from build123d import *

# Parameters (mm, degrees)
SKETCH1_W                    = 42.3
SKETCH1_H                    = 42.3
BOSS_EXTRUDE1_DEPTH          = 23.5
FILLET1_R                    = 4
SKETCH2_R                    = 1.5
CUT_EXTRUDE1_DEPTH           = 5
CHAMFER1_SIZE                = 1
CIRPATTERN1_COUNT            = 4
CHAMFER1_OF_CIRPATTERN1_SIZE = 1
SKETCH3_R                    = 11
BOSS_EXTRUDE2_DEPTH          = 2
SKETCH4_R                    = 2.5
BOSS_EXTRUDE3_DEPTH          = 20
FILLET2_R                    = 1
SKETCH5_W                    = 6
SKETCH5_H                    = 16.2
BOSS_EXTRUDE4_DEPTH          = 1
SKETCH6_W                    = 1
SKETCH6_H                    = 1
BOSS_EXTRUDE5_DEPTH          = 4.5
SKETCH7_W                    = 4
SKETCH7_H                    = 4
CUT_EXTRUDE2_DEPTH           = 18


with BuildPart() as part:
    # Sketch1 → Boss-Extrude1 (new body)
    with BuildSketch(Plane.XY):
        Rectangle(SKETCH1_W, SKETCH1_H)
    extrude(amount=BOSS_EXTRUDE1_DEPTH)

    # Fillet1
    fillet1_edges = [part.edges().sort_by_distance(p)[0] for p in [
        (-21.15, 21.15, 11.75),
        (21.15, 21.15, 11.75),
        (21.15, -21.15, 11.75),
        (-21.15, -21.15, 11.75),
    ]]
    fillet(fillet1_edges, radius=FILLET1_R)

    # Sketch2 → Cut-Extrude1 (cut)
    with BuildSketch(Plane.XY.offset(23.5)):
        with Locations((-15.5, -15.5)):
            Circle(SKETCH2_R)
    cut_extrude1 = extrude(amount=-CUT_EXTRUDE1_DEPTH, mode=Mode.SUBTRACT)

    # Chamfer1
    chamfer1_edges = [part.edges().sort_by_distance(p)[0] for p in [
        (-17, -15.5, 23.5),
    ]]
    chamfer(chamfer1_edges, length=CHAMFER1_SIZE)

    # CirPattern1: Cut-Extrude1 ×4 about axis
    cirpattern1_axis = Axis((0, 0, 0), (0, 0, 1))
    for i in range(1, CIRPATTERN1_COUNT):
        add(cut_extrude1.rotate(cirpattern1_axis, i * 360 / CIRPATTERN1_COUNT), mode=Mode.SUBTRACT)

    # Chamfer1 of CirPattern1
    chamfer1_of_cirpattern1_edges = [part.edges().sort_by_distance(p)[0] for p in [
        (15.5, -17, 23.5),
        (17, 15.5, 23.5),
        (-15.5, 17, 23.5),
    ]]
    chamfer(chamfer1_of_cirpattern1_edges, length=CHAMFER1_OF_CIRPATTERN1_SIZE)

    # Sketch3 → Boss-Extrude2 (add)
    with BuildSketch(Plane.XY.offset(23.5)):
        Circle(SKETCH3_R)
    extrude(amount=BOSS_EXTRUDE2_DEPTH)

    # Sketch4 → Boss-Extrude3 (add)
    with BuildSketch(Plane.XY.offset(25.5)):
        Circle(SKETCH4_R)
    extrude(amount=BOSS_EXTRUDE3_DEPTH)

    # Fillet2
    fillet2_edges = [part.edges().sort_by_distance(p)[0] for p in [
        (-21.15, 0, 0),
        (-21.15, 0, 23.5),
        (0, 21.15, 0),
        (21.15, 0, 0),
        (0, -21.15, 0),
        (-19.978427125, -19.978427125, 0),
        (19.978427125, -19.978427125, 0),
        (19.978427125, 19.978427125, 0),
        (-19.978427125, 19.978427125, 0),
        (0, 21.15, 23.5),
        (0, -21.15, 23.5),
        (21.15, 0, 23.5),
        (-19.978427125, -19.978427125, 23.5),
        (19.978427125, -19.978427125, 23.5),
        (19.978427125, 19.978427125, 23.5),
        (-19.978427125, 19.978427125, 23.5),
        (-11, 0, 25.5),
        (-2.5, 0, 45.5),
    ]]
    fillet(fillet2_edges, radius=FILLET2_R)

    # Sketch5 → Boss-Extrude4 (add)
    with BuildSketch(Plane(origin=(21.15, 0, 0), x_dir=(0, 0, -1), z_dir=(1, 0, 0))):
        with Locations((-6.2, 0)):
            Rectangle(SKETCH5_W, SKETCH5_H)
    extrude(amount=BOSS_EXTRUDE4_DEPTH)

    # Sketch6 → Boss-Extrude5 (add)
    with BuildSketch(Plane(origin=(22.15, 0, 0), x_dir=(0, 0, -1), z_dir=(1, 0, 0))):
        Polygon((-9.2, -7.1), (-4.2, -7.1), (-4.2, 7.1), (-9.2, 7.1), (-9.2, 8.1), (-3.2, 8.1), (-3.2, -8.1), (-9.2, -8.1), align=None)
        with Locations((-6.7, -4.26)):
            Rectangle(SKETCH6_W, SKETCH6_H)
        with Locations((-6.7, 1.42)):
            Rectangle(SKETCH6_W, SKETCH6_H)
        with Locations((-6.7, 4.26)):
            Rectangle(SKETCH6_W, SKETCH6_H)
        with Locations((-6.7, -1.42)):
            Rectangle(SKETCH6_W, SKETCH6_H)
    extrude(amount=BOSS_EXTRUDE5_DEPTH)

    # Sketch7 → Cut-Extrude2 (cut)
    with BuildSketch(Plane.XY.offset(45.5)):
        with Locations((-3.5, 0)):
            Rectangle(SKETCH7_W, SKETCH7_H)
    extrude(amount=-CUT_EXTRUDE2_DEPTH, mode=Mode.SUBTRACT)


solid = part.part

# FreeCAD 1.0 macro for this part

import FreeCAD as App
import Part
import Sketcher

V = App.Vector
Q = App.Units.Quantity


def edges_at(feature, points):
    """Names of the edges that pass closest to the given points."""
    edges = feature.Shape.Edges
    near = lambda p: min(range(len(edges)), key=lambda i: edges[i].distToShape(Part.Vertex(*p))[0])
    return sorted({f"Edge{near(p) + 1}" for p in points})

doc = App.newDocument("Part")
body = doc.addObject("PartDesign::Body", "Body")

# Sketch on XY plane
sketch1 = doc.addObject("Sketcher::SketchObject", "Sketch")
body.addObject(sketch1)
sketch1.AttachmentSupport = (doc.XY_Plane, [""])
sketch1.MapMode = "FlatFace"
sketch1.addGeometry([
    Part.LineSegment(V(-21.15, 21.15, 0), V(-21.15, -21.15, 0)),
    Part.LineSegment(V(-21.15, -21.15, 0), V(21.15, -21.15, 0)),
    Part.LineSegment(V(21.15, -21.15, 0), V(21.15, 21.15, 0)),
    Part.LineSegment(V(21.15, 21.15, 0), V(-21.15, 21.15, 0)),
], False)
sketch1.addConstraint([
    Sketcher.Constraint("Coincident", 0, 2, 1, 1),
    Sketcher.Constraint("Coincident", 1, 2, 2, 1),
    Sketcher.Constraint("Coincident", 2, 2, 3, 1),
    Sketcher.Constraint("Coincident", 3, 2, 0, 1),
    Sketcher.Constraint("Vertical", 0),
    Sketcher.Constraint("Horizontal", 1),
    Sketcher.Constraint("Vertical", 2),
    Sketcher.Constraint("Horizontal", 3),
    Sketcher.Constraint("Symmetric", 0, 2, 2, 2, -1, 1),
    Sketcher.Constraint("Equal", 3, 0),
    Sketcher.Constraint("DistanceX", 1, 1, 1, 2, Q("42.3 mm")),
])
pad1 = doc.addObject("PartDesign::Pad", "Pad")
body.addObject(pad1)
pad1.Profile = sketch1
pad1.Length = 23.5
doc.recompute()

fillet = doc.addObject("PartDesign::Fillet", "Fillet")
body.addObject(fillet)
fillet.Base = (pad1, edges_at(pad1, [
    (-21.15, 21.15, 11.75),
    (21.15, 21.15, 11.75),
    (21.15, -21.15, 11.75),
    (-21.15, -21.15, 11.75),
]))
fillet.Radius = 4

# Sketch on XY plane
sketch2 = doc.addObject("Sketcher::SketchObject", "Sketch001")
body.addObject(sketch2)
sketch2.AttachmentSupport = (doc.XY_Plane, [""])
sketch2.MapMode = "FlatFace"
sketch2.AttachmentOffset = App.Placement(V(0, 0, 23.5), App.Rotation())
sketch2.addGeometry(Part.Circle(V(-15.5, -15.5, 0), V(0, 0, 1), 1.5), False)
sketch2.addConstraint([
    Sketcher.Constraint("Diameter", 0, Q("3 mm")),
    Sketcher.Constraint("DistanceX", 0, 3, -1, 1, Q("15.5 mm")),
    Sketcher.Constraint("DistanceY", 0, 3, -1, 1, Q("15.5 mm")),
])
pocket1 = doc.addObject("PartDesign::Pocket", "Pocket")
body.addObject(pocket1)
pocket1.Profile = sketch2
pocket1.Length = 5
doc.recompute()

chamfer = doc.addObject("PartDesign::Chamfer", "Chamfer")
body.addObject(chamfer)
chamfer.Base = (pocket1, edges_at(pocket1, [(-17, -15.5, 23.5)]))
chamfer.Size = 1
doc.recompute()

polarpattern = doc.addObject("PartDesign::PolarPattern", "PolarPattern")
body.addObject(polarpattern)
polarpattern.Originals = [pocket1]
polarpattern.Axis = (doc.Z_Axis, [""])
polarpattern.Angle = 360
polarpattern.Occurrences = 4
body.Tip = polarpattern
doc.recompute()

chamfer2 = doc.addObject("PartDesign::Chamfer", "Chamfer001")
body.addObject(chamfer2)
chamfer2.Base = (polarpattern, edges_at(polarpattern, [(15.5, -17, 23.5), (17, 15.5, 23.5), (-15.5, 17, 23.5)]))
chamfer2.Size = 1

# Sketch on XY plane
sketch3 = doc.addObject("Sketcher::SketchObject", "Sketch002")
body.addObject(sketch3)
sketch3.AttachmentSupport = (doc.XY_Plane, [""])
sketch3.MapMode = "FlatFace"
sketch3.AttachmentOffset = App.Placement(V(0, 0, 23.5), App.Rotation())
sketch3.addGeometry(Part.Circle(V(0, 0, 0), V(0, 0, 1), 11), False)
sketch3.addConstraint([
    Sketcher.Constraint("Coincident", 0, 3, -1, 1),
    Sketcher.Constraint("Diameter", 0, Q("22 mm")),
])
pad2 = doc.addObject("PartDesign::Pad", "Pad001")
body.addObject(pad2)
pad2.Profile = sketch3
pad2.Length = 2

# Sketch on XY plane
sketch4 = doc.addObject("Sketcher::SketchObject", "Sketch003")
body.addObject(sketch4)
sketch4.AttachmentSupport = (doc.XY_Plane, [""])
sketch4.MapMode = "FlatFace"
sketch4.AttachmentOffset = App.Placement(V(0, 0, 25.5), App.Rotation())
sketch4.addGeometry(Part.Circle(V(0, 0, 0), V(0, 0, 1), 2.5), False)
sketch4.addConstraint([
    Sketcher.Constraint("Coincident", 0, 3, -1, 1),
    Sketcher.Constraint("Diameter", 0, Q("5 mm")),
])
pad3 = doc.addObject("PartDesign::Pad", "Pad002")
body.addObject(pad3)
pad3.Profile = sketch4
pad3.Length = 20
doc.recompute()

fillet2 = doc.addObject("PartDesign::Fillet", "Fillet001")
body.addObject(fillet2)
fillet2.Base = (pad3, edges_at(pad3, [
    (-21.15, 0, 0),
    (-21.15, 0, 23.5),
    (0, 21.15, 0),
    (21.15, 0, 0),
    (0, -21.15, 0),
    (-19.978, -19.978, 0),
    (19.978, -19.978, 0),
    (19.978, 19.978, 0),
    (-19.978, 19.978, 0),
    (0, 21.15, 23.5),
    (0, -21.15, 23.5),
    (21.15, 0, 23.5),
    (-19.978, -19.978, 23.5),
    (19.978, -19.978, 23.5),
    (19.978, 19.978, 23.5),
    (-19.978, 19.978, 23.5),
    (-11, 0, 25.5),
    (-2.5, 0, 45.5),
]))
fillet2.Radius = 1

# Sketch on YZ plane
sketch5 = doc.addObject("Sketcher::SketchObject", "Sketch004")
body.addObject(sketch5)
sketch5.AttachmentSupport = (doc.YZ_Plane, [""])
sketch5.MapMode = "FlatFace"
sketch5.AttachmentOffset = App.Placement(V(0, 0, 21.15), App.Rotation())
sketch5.addGeometry([
    Part.LineSegment(V(8.1, 9.2, 0), V(-8.1, 9.2, 0)),
    Part.LineSegment(V(-8.1, 9.2, 0), V(-8.1, 3.2, 0)),
    Part.LineSegment(V(-8.1, 3.2, 0), V(8.1, 3.2, 0)),
    Part.LineSegment(V(8.1, 3.2, 0), V(8.1, 9.2, 0)),
], False)
sketch5.addConstraint([
    Sketcher.Constraint("Coincident", 0, 2, 1, 1),
    Sketcher.Constraint("Coincident", 1, 2, 2, 1),
    Sketcher.Constraint("Coincident", 2, 2, 3, 1),
    Sketcher.Constraint("Coincident", 3, 2, 0, 1),
    Sketcher.Constraint("Horizontal", 0),
    Sketcher.Constraint("Vertical", 1),
    Sketcher.Constraint("Horizontal", 2),
    Sketcher.Constraint("Vertical", 3),
    Sketcher.Constraint("DistanceY", 1, 2, 1, 1, Q("6 mm")),
    Sketcher.Constraint("DistanceX", 0, 2, 0, 1, Q("16.2 mm")),
    Sketcher.Constraint("DistanceX", 0, 2, -1, 1, Q("8.1 mm")),
    Sketcher.Constraint("DistanceY", -1, 1, 0, 2, Q("9.2 mm")),
])
pad4 = doc.addObject("PartDesign::Pad", "Pad003")
body.addObject(pad4)
pad4.Profile = sketch5
pad4.Length = 1

# Sketch on YZ plane
sketch6 = doc.addObject("Sketcher::SketchObject", "Sketch005")
body.addObject(sketch6)
sketch6.AttachmentSupport = (doc.YZ_Plane, [""])
sketch6.MapMode = "FlatFace"
sketch6.AttachmentOffset = App.Placement(V(0, 0, 22.15), App.Rotation())
sketch6.addGeometry([
    Part.LineSegment(V(-7.1, 4.2, 0), V(-7.1, 9.2, 0)),  # 0
    Part.LineSegment(V(-7.1, 9.2, 0), V(-8.1, 9.2, 0)),  # 1
    Part.LineSegment(V(-8.1, 9.2, 0), V(-8.1, 3.2, 0)),  # 2
    Part.LineSegment(V(-8.1, 3.2, 0), V(8.1, 3.2, 0)),  # 3
    Part.LineSegment(V(8.1, 3.2, 0), V(8.1, 9.2, 0)),  # 4
    Part.LineSegment(V(8.1, 9.2, 0), V(7.1, 9.2, 0)),  # 5
    Part.LineSegment(V(7.1, 9.2, 0), V(7.1, 4.2, 0)),  # 6
    Part.LineSegment(V(7.1, 4.2, 0), V(-7.1, 4.2, 0)),  # 7
    Part.LineSegment(V(-3.76, 7.2, 0), V(-4.76, 7.2, 0)),  # 8
    Part.LineSegment(V(-4.76, 7.2, 0), V(-4.76, 6.2, 0)),  # 9
    Part.LineSegment(V(-4.76, 6.2, 0), V(-3.76, 6.2, 0)),  # 10
    Part.LineSegment(V(-3.76, 6.2, 0), V(-3.76, 7.2, 0)),  # 11
    Part.LineSegment(V(1.92, 7.2, 0), V(0.92, 7.2, 0)),  # 12
    Part.LineSegment(V(0.92, 7.2, 0), V(0.92, 6.2, 0)),  # 13
    Part.LineSegment(V(0.92, 6.2, 0), V(1.92, 6.2, 0)),  # 14
    Part.LineSegment(V(1.92, 6.2, 0), V(1.92, 7.2, 0)),  # 15
    Part.LineSegment(V(4.76, 7.2, 0), V(3.76, 7.2, 0)),  # 16
    Part.LineSegment(V(3.76, 7.2, 0), V(3.76, 6.2, 0)),  # 17
    Part.LineSegment(V(3.76, 6.2, 0), V(4.76, 6.2, 0)),  # 18
    Part.LineSegment(V(4.76, 6.2, 0), V(4.76, 7.2, 0)),  # 19
    Part.LineSegment(V(-0.92, 7.2, 0), V(-1.92, 7.2, 0)),  # 20
    Part.LineSegment(V(-1.92, 7.2, 0), V(-1.92, 6.2, 0)),  # 21
    Part.LineSegment(V(-1.92, 6.2, 0), V(-0.92, 6.2, 0)),  # 22
    Part.LineSegment(V(-0.92, 6.2, 0), V(-0.92, 7.2, 0)),  # 23
], False)
sketch6.addConstraint([
    Sketcher.Constraint("Coincident", 0, 2, 1, 1),
    Sketcher.Constraint("Coincident", 1, 2, 2, 1),
    Sketcher.Constraint("Coincident", 2, 2, 3, 1),
    Sketcher.Constraint("Coincident", 3, 2, 4, 1),
    Sketcher.Constraint("Coincident", 4, 2, 5, 1),
    Sketcher.Constraint("Coincident", 5, 2, 6, 1),
    Sketcher.Constraint("Coincident", 6, 2, 7, 1),
    Sketcher.Constraint("Coincident", 7, 2, 0, 1),
    Sketcher.Constraint("Coincident", 8, 2, 9, 1),
    Sketcher.Constraint("Coincident", 9, 2, 10, 1),
    Sketcher.Constraint("Coincident", 10, 2, 11, 1),
    Sketcher.Constraint("Coincident", 11, 2, 8, 1),
    Sketcher.Constraint("Coincident", 12, 2, 13, 1),
    Sketcher.Constraint("Coincident", 13, 2, 14, 1),
    Sketcher.Constraint("Coincident", 14, 2, 15, 1),
    Sketcher.Constraint("Coincident", 15, 2, 12, 1),
    Sketcher.Constraint("Coincident", 16, 2, 17, 1),
    Sketcher.Constraint("Coincident", 17, 2, 18, 1),
    Sketcher.Constraint("Coincident", 18, 2, 19, 1),
    Sketcher.Constraint("Coincident", 19, 2, 16, 1),
    Sketcher.Constraint("Coincident", 20, 2, 21, 1),
    Sketcher.Constraint("Coincident", 21, 2, 22, 1),
    Sketcher.Constraint("Coincident", 22, 2, 23, 1),
    Sketcher.Constraint("Coincident", 23, 2, 20, 1),
    Sketcher.Constraint("Vertical", 0),
    Sketcher.Constraint("Horizontal", 1),
    Sketcher.Constraint("Vertical", 2),
    Sketcher.Constraint("Horizontal", 3),
    Sketcher.Constraint("Vertical", 4),
    Sketcher.Constraint("Horizontal", 5),
    Sketcher.Constraint("Vertical", 6),
    Sketcher.Constraint("Horizontal", 7),
    Sketcher.Constraint("Horizontal", 8),
    Sketcher.Constraint("Vertical", 9),
    Sketcher.Constraint("Horizontal", 10),
    Sketcher.Constraint("Vertical", 11),
    Sketcher.Constraint("Horizontal", 12),
    Sketcher.Constraint("Vertical", 13),
    Sketcher.Constraint("Horizontal", 14),
    Sketcher.Constraint("Vertical", 15),
    Sketcher.Constraint("Horizontal", 16),
    Sketcher.Constraint("Vertical", 17),
    Sketcher.Constraint("Horizontal", 18),
    Sketcher.Constraint("Vertical", 19),
    Sketcher.Constraint("Horizontal", 20),
    Sketcher.Constraint("Vertical", 21),
    Sketcher.Constraint("Horizontal", 22),
    Sketcher.Constraint("Vertical", 23),
    Sketcher.Constraint("Symmetric", 1, 2, 4, 2, -2),
    Sketcher.Constraint("Symmetric", 11, 2, 16, 2, -2),
    Sketcher.Constraint("Symmetric", 9, 2, 18, 2, -2),
    Sketcher.Constraint("Symmetric", 15, 2, 20, 2, -2),
    Sketcher.Constraint("Symmetric", 13, 2, 22, 2, -2),
    Sketcher.Constraint("Horizontal", 11, 2, 12, 2),
    Sketcher.Constraint("Horizontal", 10, 2, 13, 2),
    Sketcher.Constraint("Equal", 1, 5),
    Sketcher.Constraint("Equal", 5, 8),
    Sketcher.Constraint("Equal", 10, 12),
    Sketcher.Constraint("Equal", 22, 9),
    Sketcher.Constraint("DistanceX", 1, 2, 1, 1, Q("1 mm")),
    Sketcher.Constraint("DistanceY", 0, 1, 0, 2, Q("5 mm")),
    Sketcher.Constraint("DistanceY", 2, 2, 2, 1, Q("6 mm")),
    Sketcher.Constraint("DistanceX", 3, 1, 3, 2, Q("16.2 mm")),
    Sketcher.Constraint("DistanceY", 8, 2, 0, 2, Q("2 mm")),
    Sketcher.Constraint("DistanceY", -1, 1, 0, 2, Q("9.2 mm")),
    Sketcher.Constraint("DistanceX", 8, 2, -1, 1, Q("4.76 mm")),
    Sketcher.Constraint("DistanceX", -1, 1, 12, 2, Q("0.92 mm")),
])
pad5 = doc.addObject("PartDesign::Pad", "Pad004")
body.addObject(pad5)
pad5.Profile = sketch6
pad5.Length = 4.5

# Sketch on XY plane
sketch7 = doc.addObject("Sketcher::SketchObject", "Sketch006")
body.addObject(sketch7)
sketch7.AttachmentSupport = (doc.XY_Plane, [""])
sketch7.MapMode = "FlatFace"
sketch7.AttachmentOffset = App.Placement(V(0, 0, 45.5), App.Rotation())
sketch7.addGeometry([
    Part.LineSegment(V(-5.5, 2, 0), V(-5.5, -2, 0)),
    Part.LineSegment(V(-5.5, -2, 0), V(-1.5, -2, 0)),
    Part.LineSegment(V(-1.5, -2, 0), V(-1.5, 2, 0)),
    Part.LineSegment(V(-1.5, 2, 0), V(-5.5, 2, 0)),
], False)
sketch7.addConstraint([
    Sketcher.Constraint("Coincident", 0, 2, 1, 1),
    Sketcher.Constraint("Coincident", 1, 2, 2, 1),
    Sketcher.Constraint("Coincident", 2, 2, 3, 1),
    Sketcher.Constraint("Coincident", 3, 2, 0, 1),
    Sketcher.Constraint("Vertical", 0),
    Sketcher.Constraint("Horizontal", 1),
    Sketcher.Constraint("Vertical", 2),
    Sketcher.Constraint("Horizontal", 3),
    Sketcher.Constraint("Equal", 3, 0),
    Sketcher.Constraint("DistanceX", 1, 1, 1, 2, Q("4 mm")),
    Sketcher.Constraint("DistanceY", 0, 2, -1, 1, Q("2 mm")),
    Sketcher.Constraint("DistanceX", 0, 2, -1, 1, Q("5.5 mm")),
])
pocket2 = doc.addObject("PartDesign::Pocket", "Pocket001")
body.addObject(pocket2)
pocket2.Profile = sketch7
pocket2.Length = 18

doc.recompute()
